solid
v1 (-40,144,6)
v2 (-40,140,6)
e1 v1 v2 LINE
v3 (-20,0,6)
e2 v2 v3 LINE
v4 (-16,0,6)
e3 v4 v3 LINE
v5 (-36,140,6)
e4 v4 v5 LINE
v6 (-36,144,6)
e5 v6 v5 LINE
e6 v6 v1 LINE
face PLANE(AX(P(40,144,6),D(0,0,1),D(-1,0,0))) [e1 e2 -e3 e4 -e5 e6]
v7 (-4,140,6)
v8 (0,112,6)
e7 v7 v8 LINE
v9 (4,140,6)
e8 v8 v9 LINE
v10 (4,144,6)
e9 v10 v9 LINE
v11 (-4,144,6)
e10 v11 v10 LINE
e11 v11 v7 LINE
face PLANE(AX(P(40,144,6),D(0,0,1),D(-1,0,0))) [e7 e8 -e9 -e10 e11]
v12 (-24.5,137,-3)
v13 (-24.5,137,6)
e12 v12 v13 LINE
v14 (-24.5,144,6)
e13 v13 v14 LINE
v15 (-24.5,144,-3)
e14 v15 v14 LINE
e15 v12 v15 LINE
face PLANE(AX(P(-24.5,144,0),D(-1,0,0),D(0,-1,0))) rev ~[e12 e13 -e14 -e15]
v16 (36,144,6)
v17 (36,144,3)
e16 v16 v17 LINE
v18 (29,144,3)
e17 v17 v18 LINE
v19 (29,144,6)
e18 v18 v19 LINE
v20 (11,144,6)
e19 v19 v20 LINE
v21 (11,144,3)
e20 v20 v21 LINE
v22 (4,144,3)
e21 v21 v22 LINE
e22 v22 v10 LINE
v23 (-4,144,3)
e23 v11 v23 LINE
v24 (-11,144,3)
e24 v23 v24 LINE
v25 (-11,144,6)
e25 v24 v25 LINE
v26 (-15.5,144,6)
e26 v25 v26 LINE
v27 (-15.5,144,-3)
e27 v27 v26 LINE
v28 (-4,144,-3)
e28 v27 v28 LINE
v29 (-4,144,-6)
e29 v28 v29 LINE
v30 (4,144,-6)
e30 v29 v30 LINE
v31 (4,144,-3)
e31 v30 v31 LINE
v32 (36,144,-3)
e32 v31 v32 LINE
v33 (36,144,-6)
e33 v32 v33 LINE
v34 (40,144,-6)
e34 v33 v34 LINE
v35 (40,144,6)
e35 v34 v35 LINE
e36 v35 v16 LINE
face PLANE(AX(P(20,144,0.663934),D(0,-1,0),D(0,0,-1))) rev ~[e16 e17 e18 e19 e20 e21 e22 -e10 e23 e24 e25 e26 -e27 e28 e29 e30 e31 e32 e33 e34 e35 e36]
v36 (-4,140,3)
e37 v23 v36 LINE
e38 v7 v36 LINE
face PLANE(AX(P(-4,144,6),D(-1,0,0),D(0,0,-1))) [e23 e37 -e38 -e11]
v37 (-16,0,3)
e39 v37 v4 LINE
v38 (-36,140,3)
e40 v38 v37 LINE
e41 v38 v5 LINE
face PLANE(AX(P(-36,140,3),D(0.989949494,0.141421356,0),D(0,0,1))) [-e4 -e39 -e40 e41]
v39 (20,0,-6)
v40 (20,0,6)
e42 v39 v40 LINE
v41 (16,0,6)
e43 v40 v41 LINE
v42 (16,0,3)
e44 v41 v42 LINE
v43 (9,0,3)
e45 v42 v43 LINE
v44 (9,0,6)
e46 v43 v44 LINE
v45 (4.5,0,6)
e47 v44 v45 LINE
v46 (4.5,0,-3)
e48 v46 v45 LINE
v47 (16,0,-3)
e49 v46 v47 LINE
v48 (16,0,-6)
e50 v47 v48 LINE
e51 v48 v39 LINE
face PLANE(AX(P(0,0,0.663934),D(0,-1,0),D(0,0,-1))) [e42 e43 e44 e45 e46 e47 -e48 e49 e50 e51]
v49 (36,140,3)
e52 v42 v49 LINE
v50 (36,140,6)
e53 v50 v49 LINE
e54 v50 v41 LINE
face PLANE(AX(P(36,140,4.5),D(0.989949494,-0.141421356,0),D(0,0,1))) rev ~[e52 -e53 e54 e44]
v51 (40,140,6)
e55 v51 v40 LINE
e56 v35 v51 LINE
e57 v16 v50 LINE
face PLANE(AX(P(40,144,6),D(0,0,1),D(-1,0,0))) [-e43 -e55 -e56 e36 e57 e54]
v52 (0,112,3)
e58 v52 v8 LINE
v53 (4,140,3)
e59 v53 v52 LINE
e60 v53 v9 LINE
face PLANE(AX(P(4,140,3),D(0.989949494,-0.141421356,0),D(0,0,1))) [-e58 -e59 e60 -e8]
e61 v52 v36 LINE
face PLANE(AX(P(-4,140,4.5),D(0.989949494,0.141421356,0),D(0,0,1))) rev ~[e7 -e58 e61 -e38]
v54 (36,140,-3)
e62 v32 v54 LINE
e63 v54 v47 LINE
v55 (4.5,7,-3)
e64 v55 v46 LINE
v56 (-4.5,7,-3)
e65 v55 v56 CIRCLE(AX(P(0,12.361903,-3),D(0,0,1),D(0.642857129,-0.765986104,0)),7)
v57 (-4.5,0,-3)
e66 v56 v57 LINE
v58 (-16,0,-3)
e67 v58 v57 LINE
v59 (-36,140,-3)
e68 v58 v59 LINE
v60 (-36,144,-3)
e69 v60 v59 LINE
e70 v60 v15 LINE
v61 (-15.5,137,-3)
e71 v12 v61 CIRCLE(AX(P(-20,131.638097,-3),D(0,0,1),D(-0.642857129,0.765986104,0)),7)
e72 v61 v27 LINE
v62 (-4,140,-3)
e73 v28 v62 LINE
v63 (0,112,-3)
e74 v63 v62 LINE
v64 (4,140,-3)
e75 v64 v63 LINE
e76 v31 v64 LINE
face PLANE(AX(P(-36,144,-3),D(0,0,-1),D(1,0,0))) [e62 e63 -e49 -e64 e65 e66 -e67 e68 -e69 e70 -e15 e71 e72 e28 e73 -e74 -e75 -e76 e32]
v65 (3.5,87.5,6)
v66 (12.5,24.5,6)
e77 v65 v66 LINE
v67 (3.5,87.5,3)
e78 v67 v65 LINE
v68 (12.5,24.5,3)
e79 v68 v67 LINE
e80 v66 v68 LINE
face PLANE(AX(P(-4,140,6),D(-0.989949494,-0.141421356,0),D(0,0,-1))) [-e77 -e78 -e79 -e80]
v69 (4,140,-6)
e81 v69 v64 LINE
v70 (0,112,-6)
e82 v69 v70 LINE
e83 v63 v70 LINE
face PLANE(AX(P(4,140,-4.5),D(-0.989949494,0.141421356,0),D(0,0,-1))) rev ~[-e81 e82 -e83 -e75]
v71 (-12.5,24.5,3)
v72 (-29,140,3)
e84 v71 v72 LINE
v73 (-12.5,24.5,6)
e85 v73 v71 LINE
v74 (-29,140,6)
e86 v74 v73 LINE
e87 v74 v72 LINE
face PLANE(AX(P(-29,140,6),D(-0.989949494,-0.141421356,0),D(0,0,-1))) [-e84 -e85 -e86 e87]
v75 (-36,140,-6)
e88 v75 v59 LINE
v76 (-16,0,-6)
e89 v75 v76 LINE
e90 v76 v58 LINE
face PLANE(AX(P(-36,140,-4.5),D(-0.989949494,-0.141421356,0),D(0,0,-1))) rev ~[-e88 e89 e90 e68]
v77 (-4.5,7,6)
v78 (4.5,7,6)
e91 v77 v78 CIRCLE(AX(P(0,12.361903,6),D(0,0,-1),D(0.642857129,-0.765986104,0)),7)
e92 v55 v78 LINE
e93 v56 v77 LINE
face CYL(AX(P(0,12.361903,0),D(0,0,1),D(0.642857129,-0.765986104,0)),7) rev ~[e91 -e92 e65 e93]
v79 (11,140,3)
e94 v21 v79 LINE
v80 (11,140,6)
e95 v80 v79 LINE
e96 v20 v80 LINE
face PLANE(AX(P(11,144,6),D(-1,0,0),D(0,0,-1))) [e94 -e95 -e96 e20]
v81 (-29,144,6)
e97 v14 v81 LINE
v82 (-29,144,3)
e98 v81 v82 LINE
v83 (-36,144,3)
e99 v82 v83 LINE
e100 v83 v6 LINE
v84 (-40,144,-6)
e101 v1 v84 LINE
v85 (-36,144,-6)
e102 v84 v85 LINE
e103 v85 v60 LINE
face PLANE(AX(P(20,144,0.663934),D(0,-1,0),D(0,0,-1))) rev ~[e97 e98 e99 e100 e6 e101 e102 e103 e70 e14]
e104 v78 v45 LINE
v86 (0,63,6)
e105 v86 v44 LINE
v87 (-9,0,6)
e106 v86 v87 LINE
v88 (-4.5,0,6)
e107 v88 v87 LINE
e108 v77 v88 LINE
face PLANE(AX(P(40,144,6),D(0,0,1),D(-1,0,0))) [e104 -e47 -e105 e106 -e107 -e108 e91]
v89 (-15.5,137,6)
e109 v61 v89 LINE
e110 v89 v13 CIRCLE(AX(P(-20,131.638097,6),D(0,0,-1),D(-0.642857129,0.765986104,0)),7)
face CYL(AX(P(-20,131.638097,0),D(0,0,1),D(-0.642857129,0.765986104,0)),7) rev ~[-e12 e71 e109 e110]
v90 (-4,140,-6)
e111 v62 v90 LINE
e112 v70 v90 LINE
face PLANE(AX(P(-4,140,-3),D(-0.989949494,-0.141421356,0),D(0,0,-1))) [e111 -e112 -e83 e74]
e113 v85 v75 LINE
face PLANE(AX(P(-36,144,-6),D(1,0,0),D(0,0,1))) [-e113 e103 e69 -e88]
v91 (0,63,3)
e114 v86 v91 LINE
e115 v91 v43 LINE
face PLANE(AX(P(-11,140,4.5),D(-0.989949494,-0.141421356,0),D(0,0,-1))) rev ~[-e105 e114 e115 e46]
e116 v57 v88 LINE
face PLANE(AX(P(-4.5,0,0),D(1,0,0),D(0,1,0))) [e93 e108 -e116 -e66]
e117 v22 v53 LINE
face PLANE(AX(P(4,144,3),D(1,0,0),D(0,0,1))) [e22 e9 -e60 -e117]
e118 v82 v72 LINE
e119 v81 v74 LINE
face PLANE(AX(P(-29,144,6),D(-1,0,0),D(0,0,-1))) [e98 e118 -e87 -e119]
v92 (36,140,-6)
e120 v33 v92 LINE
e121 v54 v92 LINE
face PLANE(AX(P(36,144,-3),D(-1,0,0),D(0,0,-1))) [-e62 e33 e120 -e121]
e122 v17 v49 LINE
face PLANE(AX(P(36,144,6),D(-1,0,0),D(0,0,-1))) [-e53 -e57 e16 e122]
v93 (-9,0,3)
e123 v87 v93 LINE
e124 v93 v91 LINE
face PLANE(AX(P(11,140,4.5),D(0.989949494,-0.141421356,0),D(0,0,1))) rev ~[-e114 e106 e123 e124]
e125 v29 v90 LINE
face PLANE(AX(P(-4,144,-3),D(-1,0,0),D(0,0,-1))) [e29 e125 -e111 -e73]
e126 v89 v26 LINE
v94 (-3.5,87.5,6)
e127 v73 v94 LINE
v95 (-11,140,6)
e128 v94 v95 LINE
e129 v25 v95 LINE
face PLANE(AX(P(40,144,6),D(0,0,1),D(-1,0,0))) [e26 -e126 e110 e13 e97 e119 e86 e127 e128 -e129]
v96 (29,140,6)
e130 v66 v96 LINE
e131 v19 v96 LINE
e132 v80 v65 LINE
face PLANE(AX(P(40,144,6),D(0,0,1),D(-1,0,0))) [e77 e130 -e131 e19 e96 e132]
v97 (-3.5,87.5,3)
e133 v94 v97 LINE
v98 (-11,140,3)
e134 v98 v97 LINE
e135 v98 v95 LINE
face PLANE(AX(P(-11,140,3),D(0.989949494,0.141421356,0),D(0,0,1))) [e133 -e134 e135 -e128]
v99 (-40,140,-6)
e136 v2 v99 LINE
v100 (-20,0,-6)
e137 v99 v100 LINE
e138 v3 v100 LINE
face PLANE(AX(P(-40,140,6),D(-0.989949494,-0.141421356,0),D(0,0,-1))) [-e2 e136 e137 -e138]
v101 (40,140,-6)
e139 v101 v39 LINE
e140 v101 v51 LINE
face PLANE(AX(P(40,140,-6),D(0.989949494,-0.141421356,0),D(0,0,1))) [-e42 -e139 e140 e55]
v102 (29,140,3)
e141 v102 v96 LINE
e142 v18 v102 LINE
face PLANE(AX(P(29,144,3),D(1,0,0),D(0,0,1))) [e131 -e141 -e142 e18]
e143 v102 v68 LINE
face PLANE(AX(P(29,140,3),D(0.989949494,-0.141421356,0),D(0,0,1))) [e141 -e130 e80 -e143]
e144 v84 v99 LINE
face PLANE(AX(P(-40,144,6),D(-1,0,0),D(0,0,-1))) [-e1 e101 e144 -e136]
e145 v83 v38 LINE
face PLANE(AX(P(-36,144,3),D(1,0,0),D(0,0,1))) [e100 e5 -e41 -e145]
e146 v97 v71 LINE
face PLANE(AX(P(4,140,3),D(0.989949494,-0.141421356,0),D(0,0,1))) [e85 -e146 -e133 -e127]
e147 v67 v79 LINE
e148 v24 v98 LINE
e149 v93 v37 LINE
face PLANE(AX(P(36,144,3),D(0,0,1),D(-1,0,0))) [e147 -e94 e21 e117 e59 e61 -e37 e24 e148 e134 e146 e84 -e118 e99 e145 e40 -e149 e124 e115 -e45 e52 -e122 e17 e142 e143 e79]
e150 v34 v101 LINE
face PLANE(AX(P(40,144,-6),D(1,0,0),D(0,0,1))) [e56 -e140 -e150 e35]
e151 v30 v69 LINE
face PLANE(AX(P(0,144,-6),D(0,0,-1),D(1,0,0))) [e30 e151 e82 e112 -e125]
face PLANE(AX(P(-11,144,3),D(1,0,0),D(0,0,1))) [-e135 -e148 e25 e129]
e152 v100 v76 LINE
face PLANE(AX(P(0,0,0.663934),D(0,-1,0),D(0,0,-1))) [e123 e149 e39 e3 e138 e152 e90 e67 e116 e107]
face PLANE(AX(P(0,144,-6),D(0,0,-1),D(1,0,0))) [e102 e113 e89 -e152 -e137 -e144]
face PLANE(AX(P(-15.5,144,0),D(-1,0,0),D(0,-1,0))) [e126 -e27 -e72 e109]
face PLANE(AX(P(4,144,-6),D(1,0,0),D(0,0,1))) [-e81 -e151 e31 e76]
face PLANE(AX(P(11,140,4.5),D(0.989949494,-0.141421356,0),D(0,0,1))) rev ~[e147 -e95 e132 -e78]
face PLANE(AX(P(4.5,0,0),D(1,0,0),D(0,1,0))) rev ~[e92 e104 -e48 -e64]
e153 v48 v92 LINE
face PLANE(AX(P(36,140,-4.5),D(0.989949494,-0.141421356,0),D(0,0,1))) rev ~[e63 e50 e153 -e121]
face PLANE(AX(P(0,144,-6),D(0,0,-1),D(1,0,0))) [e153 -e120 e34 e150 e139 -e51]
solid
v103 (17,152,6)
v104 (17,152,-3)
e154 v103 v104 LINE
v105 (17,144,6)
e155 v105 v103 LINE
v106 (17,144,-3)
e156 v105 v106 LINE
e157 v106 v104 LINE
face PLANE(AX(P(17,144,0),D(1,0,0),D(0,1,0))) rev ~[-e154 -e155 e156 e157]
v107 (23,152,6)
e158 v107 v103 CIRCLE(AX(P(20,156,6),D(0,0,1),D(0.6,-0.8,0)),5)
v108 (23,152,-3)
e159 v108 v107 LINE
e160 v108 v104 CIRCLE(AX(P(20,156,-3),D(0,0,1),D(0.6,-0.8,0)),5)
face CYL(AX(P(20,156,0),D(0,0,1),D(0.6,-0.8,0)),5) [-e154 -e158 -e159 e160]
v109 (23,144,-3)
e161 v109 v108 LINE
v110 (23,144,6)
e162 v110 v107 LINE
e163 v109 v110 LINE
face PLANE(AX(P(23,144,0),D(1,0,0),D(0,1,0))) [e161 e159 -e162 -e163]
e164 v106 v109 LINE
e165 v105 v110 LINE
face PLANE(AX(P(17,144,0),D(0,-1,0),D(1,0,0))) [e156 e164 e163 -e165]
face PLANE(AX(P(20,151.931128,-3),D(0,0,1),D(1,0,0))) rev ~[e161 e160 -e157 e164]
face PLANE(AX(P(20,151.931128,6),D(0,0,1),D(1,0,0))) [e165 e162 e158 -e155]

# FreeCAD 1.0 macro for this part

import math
import FreeCAD as App
import Part
import Sketcher
Q = App.Units.Quantity

doc = App.newDocument("Part")
body = doc.addObject("PartDesign::Body", "Body")

# Sketch on XZ plane
sketch1 = doc.addObject("Sketcher::SketchObject", "Sketch")
body.addObject(sketch1)
sketch1.AttachmentSupport = (doc.XZ_Plane, [""])
sketch1.MapMode = "FlatFace"
sketch1.addGeometry(Part.LineSegment(App.Vector(-20, 6, 0), App.Vector(-20, -6, 0)), False)
sketch1.addGeometry(Part.LineSegment(App.Vector(-20, -6, 0), App.Vector(-16, -6, 0)), False)
sketch1.addGeometry(Part.LineSegment(App.Vector(-16, -6, 0), App.Vector(-16, -3, 0)), False)
sketch1.addGeometry(Part.LineSegment(App.Vector(-16, -3, 0), App.Vector(16, -3, 0)), False)
sketch1.addGeometry(Part.LineSegment(App.Vector(16, -3, 0), App.Vector(16, -6, 0)), False)
sketch1.addGeometry(Part.LineSegment(App.Vector(16, -6, 0), App.Vector(20, -6, 0)), False)
sketch1.addGeometry(Part.LineSegment(App.Vector(20, -6, 0), App.Vector(20, 6, 0)), False)
sketch1.addGeometry(Part.LineSegment(App.Vector(20, 6, 0), App.Vector(16, 6, 0)), False)
sketch1.addGeometry(Part.LineSegment(App.Vector(16, 6, 0), App.Vector(16, 3, 0)), False)
sketch1.addGeometry(Part.LineSegment(App.Vector(16, 3, 0), App.Vector(9, 3, 0)), False)
sketch1.addGeometry(Part.LineSegment(App.Vector(9, 3, 0), App.Vector(9, 6, 0)), False)
sketch1.addGeometry(Part.LineSegment(App.Vector(9, 6, 0), App.Vector(-9, 6, 0)), False)
sketch1.addGeometry(Part.LineSegment(App.Vector(-9, 6, 0), App.Vector(-9, 3, 0)), False)
sketch1.addGeometry(Part.LineSegment(App.Vector(-9, 3, 0), App.Vector(-16, 3, 0)), False)
sketch1.addGeometry(Part.LineSegment(App.Vector(-16, 3, 0), App.Vector(-16, 6, 0)), False)
sketch1.addGeometry(Part.LineSegment(App.Vector(-16, 6, 0), App.Vector(-20, 6, 0)), False)
sketch1.addConstraint(Sketcher.Constraint("Coincident", 0, 2, 1, 1))
sketch1.addConstraint(Sketcher.Constraint("Coincident", 1, 2, 2, 1))
sketch1.addConstraint(Sketcher.Constraint("Coincident", 2, 2, 3, 1))
sketch1.addConstraint(Sketcher.Constraint("Coincident", 3, 2, 4, 1))
sketch1.addConstraint(Sketcher.Constraint("Coincident", 4, 2, 5, 1))
sketch1.addConstraint(Sketcher.Constraint("Coincident", 5, 2, 6, 1))
sketch1.addConstraint(Sketcher.Constraint("Coincident", 6, 2, 7, 1))
sketch1.addConstraint(Sketcher.Constraint("Coincident", 7, 2, 8, 1))
sketch1.addConstraint(Sketcher.Constraint("Coincident", 8, 2, 9, 1))
sketch1.addConstraint(Sketcher.Constraint("Coincident", 9, 2, 10, 1))
sketch1.addConstraint(Sketcher.Constraint("Coincident", 10, 2, 11, 1))
sketch1.addConstraint(Sketcher.Constraint("Coincident", 11, 2, 12, 1))
sketch1.addConstraint(Sketcher.Constraint("Coincident", 12, 2, 13, 1))
sketch1.addConstraint(Sketcher.Constraint("Coincident", 13, 2, 14, 1))
sketch1.addConstraint(Sketcher.Constraint("Coincident", 14, 2, 15, 1))
sketch1.addConstraint(Sketcher.Constraint("Coincident", 15, 2, 0, 1))
sketch1.addConstraint(Sketcher.Constraint("Vertical", 0))
sketch1.addConstraint(Sketcher.Constraint("Horizontal", 1))
sketch1.addConstraint(Sketcher.Constraint("Vertical", 2))
sketch1.addConstraint(Sketcher.Constraint("Horizontal", 3))
sketch1.addConstraint(Sketcher.Constraint("Vertical", 4))
sketch1.addConstraint(Sketcher.Constraint("Horizontal", 5))
sketch1.addConstraint(Sketcher.Constraint("Vertical", 6))
sketch1.addConstraint(Sketcher.Constraint("Horizontal", 7))
sketch1.addConstraint(Sketcher.Constraint("Vertical", 8))
sketch1.addConstraint(Sketcher.Constraint("Horizontal", 9))
sketch1.addConstraint(Sketcher.Constraint("Vertical", 10))
sketch1.addConstraint(Sketcher.Constraint("Horizontal", 11))
sketch1.addConstraint(Sketcher.Constraint("Vertical", 12))
sketch1.addConstraint(Sketcher.Constraint("Horizontal", 13))
sketch1.addConstraint(Sketcher.Constraint("Vertical", 14))
sketch1.addConstraint(Sketcher.Constraint("Horizontal", 15))
sketch1.addConstraint(Sketcher.Constraint("Symmetric", 0, 2, 6, 2, -1, 1))
sketch1.addConstraint(Sketcher.Constraint("Symmetric", 2, 2, 8, 2, -1, 1))
sketch1.addConstraint(Sketcher.Constraint("Symmetric", 3, 2, 13, 2, -1, 1))
sketch1.addConstraint(Sketcher.Constraint("Symmetric", 1, 2, 4, 2, -2))
sketch1.addConstraint(Sketcher.Constraint("Horizontal", 7, 2, 10, 2))
sketch1.addConstraint(Sketcher.Constraint("Horizontal", 11, 2, 14, 2))
sketch1.addConstraint(Sketcher.Constraint("Equal", 9, 13))
sketch1.addConstraint(Sketcher.Constraint("DistanceX", 1, 1, 1, 2, Q("4 mm")))
sketch1.addConstraint(Sketcher.Constraint("DistanceX", 3, 1, 3, 2, Q("32 mm")))
sketch1.addConstraint(Sketcher.Constraint("DistanceX", 9, 2, 9, 1, Q("7 mm")))
sketch1.addConstraint(Sketcher.Constraint("DistanceY", 0, 2, 0, 1, Q("12 mm")))
sketch1.addConstraint(Sketcher.Constraint("DistanceY", 2, 1, 2, 2, Q("3 mm")))

# Sketch on XY plane
sketch2 = doc.addObject("Sketcher::SketchObject", "Sketch001")
body.addObject(sketch2)
sketch2.AttachmentSupport = (doc.XY_Plane, [""])
sketch2.MapMode = "FlatFace"
sketch2.addGeometry(Part.LineSegment(App.Vector(-20, 144, 0), App.Vector(-20, 140, 0)), False)
sketch2.addGeometry(Part.LineSegment(App.Vector(-20, 140, 0), App.Vector(0, 0, 0)), False)
sketch2.addConstraint(Sketcher.Constraint("Coincident", 0, 2, 1, 1))
sketch2.addConstraint(Sketcher.Constraint("Vertical", 0))
sketch2.addConstraint(Sketcher.Constraint("Coincident", 1, 2, -1, 1))
sketch2.addConstraint(Sketcher.Constraint("DistanceY", 0, 2, 0, 1, Q("4 mm")))
sketch2.addConstraint(Sketcher.Constraint("DistanceX", 0, 1, -1, 1, Q("20 mm")))
sketch2.addConstraint(Sketcher.Constraint("DistanceY", -1, 1, 0, 1, Q("144 mm")))
doc.recompute()

additivepipe = doc.addObject("PartDesign::AdditivePipe", "AdditivePipe")
body.addObject(additivepipe)
additivepipe.Profile = sketch1
additivepipe.Spine = (sketch2, ["Edge1", "Edge2"])

# Sketch on XZ plane
sketch3 = doc.addObject("Sketcher::SketchObject", "Sketch002")
body.addObject(sketch3)
sketch3.AttachmentSupport = (doc.XZ_Plane, [""])
sketch3.MapMode = "FlatFace"
sketch3.addGeometry(Part.LineSegment(App.Vector(-20, 6, 0), App.Vector(-20, -6, 0)), False)
sketch3.addGeometry(Part.LineSegment(App.Vector(-20, -6, 0), App.Vector(-16, -6, 0)), False)
sketch3.addGeometry(Part.LineSegment(App.Vector(-16, -6, 0), App.Vector(-16, -3, 0)), False)
sketch3.addGeometry(Part.LineSegment(App.Vector(-16, -3, 0), App.Vector(16, -3, 0)), False)
sketch3.addGeometry(Part.LineSegment(App.Vector(16, -3, 0), App.Vector(16, -6, 0)), False)
sketch3.addGeometry(Part.LineSegment(App.Vector(16, -6, 0), App.Vector(20, -6, 0)), False)
sketch3.addGeometry(Part.LineSegment(App.Vector(20, -6, 0), App.Vector(20, 6, 0)), False)
sketch3.addGeometry(Part.LineSegment(App.Vector(20, 6, 0), App.Vector(16, 6, 0)), False)
sketch3.addGeometry(Part.LineSegment(App.Vector(16, 6, 0), App.Vector(16, 3, 0)), False)
sketch3.addGeometry(Part.LineSegment(App.Vector(16, 3, 0), App.Vector(9, 3, 0)), False)
sketch3.addGeometry(Part.LineSegment(App.Vector(9, 3, 0), App.Vector(9, 6, 0)), False)
sketch3.addGeometry(Part.LineSegment(App.Vector(9, 6, 0), App.Vector(-9, 6, 0)), False)
sketch3.addGeometry(Part.LineSegment(App.Vector(-9, 6, 0), App.Vector(-9, 3, 0)), False)
sketch3.addGeometry(Part.LineSegment(App.Vector(-9, 3, 0), App.Vector(-16, 3, 0)), False)
sketch3.addGeometry(Part.LineSegment(App.Vector(-16, 3, 0), App.Vector(-16, 6, 0)), False)
sketch3.addGeometry(Part.LineSegment(App.Vector(-16, 6, 0), App.Vector(-20, 6, 0)), False)
sketch3.addConstraint(Sketcher.Constraint("Coincident", 0, 2, 1, 1))
sketch3.addConstraint(Sketcher.Constraint("Coincident", 1, 2, 2, 1))
sketch3.addConstraint(Sketcher.Constraint("Coincident", 2, 2, 3, 1))
sketch3.addConstraint(Sketcher.Constraint("Coincident", 3, 2, 4, 1))
sketch3.addConstraint(Sketcher.Constraint("Coincident", 4, 2, 5, 1))
sketch3.addConstraint(Sketcher.Constraint("Coincident", 5, 2, 6, 1))
sketch3.addConstraint(Sketcher.Constraint("Coincident", 6, 2, 7, 1))
sketch3.addConstraint(Sketcher.Constraint("Coincident", 7, 2, 8, 1))
sketch3.addConstraint(Sketcher.Constraint("Coincident", 8, 2, 9, 1))
sketch3.addConstraint(Sketcher.Constraint("Coincident", 9, 2, 10, 1))
sketch3.addConstraint(Sketcher.Constraint("Coincident", 10, 2, 11, 1))
sketch3.addConstraint(Sketcher.Constraint("Coincident", 11, 2, 12, 1))
sketch3.addConstraint(Sketcher.Constraint("Coincident", 12, 2, 13, 1))
sketch3.addConstraint(Sketcher.Constraint("Coincident", 13, 2, 14, 1))
sketch3.addConstraint(Sketcher.Constraint("Coincident", 14, 2, 15, 1))
sketch3.addConstraint(Sketcher.Constraint("Coincident", 15, 2, 0, 1))
sketch3.addConstraint(Sketcher.Constraint("Vertical", 0))
sketch3.addConstraint(Sketcher.Constraint("Horizontal", 1))
sketch3.addConstraint(Sketcher.Constraint("Vertical", 2))
sketch3.addConstraint(Sketcher.Constraint("Horizontal", 3))
sketch3.addConstraint(Sketcher.Constraint("Vertical", 4))
sketch3.addConstraint(Sketcher.Constraint("Horizontal", 5))
sketch3.addConstraint(Sketcher.Constraint("Vertical", 6))
sketch3.addConstraint(Sketcher.Constraint("Horizontal", 7))
sketch3.addConstraint(Sketcher.Constraint("Vertical", 8))
sketch3.addConstraint(Sketcher.Constraint("Horizontal", 9))
sketch3.addConstraint(Sketcher.Constraint("Vertical", 10))
sketch3.addConstraint(Sketcher.Constraint("Horizontal", 11))
sketch3.addConstraint(Sketcher.Constraint("Vertical", 12))
sketch3.addConstraint(Sketcher.Constraint("Horizontal", 13))
sketch3.addConstraint(Sketcher.Constraint("Vertical", 14))
sketch3.addConstraint(Sketcher.Constraint("Horizontal", 15))
sketch3.addConstraint(Sketcher.Constraint("Symmetric", 0, 2, 6, 2, -1, 1))
sketch3.addConstraint(Sketcher.Constraint("Symmetric", 2, 2, 8, 2, -1, 1))
sketch3.addConstraint(Sketcher.Constraint("Symmetric", 3, 2, 13, 2, -1, 1))
sketch3.addConstraint(Sketcher.Constraint("Symmetric", 1, 2, 4, 2, -2))
sketch3.addConstraint(Sketcher.Constraint("Horizontal", 7, 2, 10, 2))
sketch3.addConstraint(Sketcher.Constraint("Horizontal", 11, 2, 14, 2))
sketch3.addConstraint(Sketcher.Constraint("Equal", 9, 13))
sketch3.addConstraint(Sketcher.Constraint("DistanceX", 1, 1, 1, 2, Q("4 mm")))
sketch3.addConstraint(Sketcher.Constraint("DistanceX", 3, 1, 3, 2, Q("32 mm")))
sketch3.addConstraint(Sketcher.Constraint("DistanceX", 9, 2, 9, 1, Q("7 mm")))
sketch3.addConstraint(Sketcher.Constraint("DistanceY", 0, 2, 0, 1, Q("12 mm")))
sketch3.addConstraint(Sketcher.Constraint("DistanceY", 2, 1, 2, 2, Q("3 mm")))

# Sketch on XY plane
sketch4 = doc.addObject("Sketcher::SketchObject", "Sketch003")
body.addObject(sketch4)
sketch4.AttachmentSupport = (doc.XY_Plane, [""])
sketch4.MapMode = "FlatFace"
sketch4.addGeometry(Part.LineSegment(App.Vector(20, 144, 0), App.Vector(20, 140, 0)), False)
sketch4.addGeometry(Part.LineSegment(App.Vector(20, 140, 0), App.Vector(0, 0, 0)), False)
sketch4.addConstraint(Sketcher.Constraint("Coincident", 0, 2, 1, 1))
sketch4.addConstraint(Sketcher.Constraint("Vertical", 0))
sketch4.addConstraint(Sketcher.Constraint("Coincident", 1, 2, -1, 1))
sketch4.addConstraint(Sketcher.Constraint("DistanceY", 0, 2, 0, 1, Q("4 mm")))
sketch4.addConstraint(Sketcher.Constraint("DistanceX", -1, 1, 0, 1, Q("20 mm")))
sketch4.addConstraint(Sketcher.Constraint("DistanceY", -1, 1, 0, 1, Q("144 mm")))
doc.recompute()

additivepipe2 = doc.addObject("PartDesign::AdditivePipe", "AdditivePipe001")
body.addObject(additivepipe2)
additivepipe2.Profile = sketch3
additivepipe2.Spine = (sketch4, ["Edge1", "Edge2"])

# Sketch on XZ plane
sketch5 = doc.addObject("Sketcher::SketchObject", "Sketch004")
body.addObject(sketch5)
sketch5.AttachmentSupport = (doc.XZ_Plane, [""])
sketch5.MapMode = "FlatFace"
sketch5.addGeometry(Part.LineSegment(App.Vector(-16, -3, 0), App.Vector(-16, -6, 0)), False)
sketch5.addGeometry(Part.LineSegment(App.Vector(-16, -6, 0), App.Vector(16, -6, 0)), False)
sketch5.addGeometry(Part.LineSegment(App.Vector(16, -6, 0), App.Vector(16, -3, 0)), False)
sketch5.addGeometry(Part.LineSegment(App.Vector(16, -3, 0), App.Vector(-16, -3, 0)), False)
sketch5.addConstraint(Sketcher.Constraint("Coincident", 0, 2, 1, 1))
sketch5.addConstraint(Sketcher.Constraint("Coincident", 1, 2, 2, 1))
sketch5.addConstraint(Sketcher.Constraint("Coincident", 2, 2, 3, 1))
sketch5.addConstraint(Sketcher.Constraint("Coincident", 3, 2, 0, 1))
sketch5.addConstraint(Sketcher.Constraint("Vertical", 0))
sketch5.addConstraint(Sketcher.Constraint("Horizontal", 1))
sketch5.addConstraint(Sketcher.Constraint("Vertical", 2))
sketch5.addConstraint(Sketcher.Constraint("Horizontal", 3))
sketch5.addConstraint(Sketcher.Constraint("DistanceX", 1, 1, 1, 2, Q("32 mm")))
sketch5.addConstraint(Sketcher.Constraint("DistanceY", 0, 2, 0, 1, Q("3 mm")))
sketch5.addConstraint(Sketcher.Constraint("DistanceX", 0, 2, -1, 1, Q("16 mm")))
sketch5.addConstraint(Sketcher.Constraint("DistanceY", 0, 2, -1, 1, Q("6 mm")))

# Sketch on XY plane
sketch6 = doc.addObject("Sketcher::SketchObject", "Sketch005")
body.addObject(sketch6)
sketch6.AttachmentSupport = (doc.XY_Plane, [""])
sketch6.MapMode = "FlatFace"
sketch6.addGeometry(Part.LineSegment(App.Vector(-20, 144, 0), App.Vector(-20, 140, 0)), False)
sketch6.addGeometry(Part.LineSegment(App.Vector(-20, 140, 0), App.Vector(0, 0, 0)), False)
sketch6.addConstraint(Sketcher.Constraint("Coincident", 0, 2, 1, 1))
sketch6.addConstraint(Sketcher.Constraint("Vertical", 0))
sketch6.addConstraint(Sketcher.Constraint("Coincident", 1, 2, -1, 1))
sketch6.addConstraint(Sketcher.Constraint("DistanceY", 0, 2, 0, 1, Q("4 mm")))
sketch6.addConstraint(Sketcher.Constraint("DistanceX", 0, 1, -1, 1, Q("20 mm")))
sketch6.addConstraint(Sketcher.Constraint("DistanceY", -1, 1, 0, 1, Q("144 mm")))
doc.recompute()

subtractivepipe = doc.addObject("PartDesign::SubtractivePipe", "SubtractivePipe")
body.addObject(subtractivepipe)
subtractivepipe.Profile = sketch5
subtractivepipe.Spine = (sketch6, ["Edge1", "Edge2"])

# Sketch on XZ plane
sketch7 = doc.addObject("Sketcher::SketchObject", "Sketch006")
body.addObject(sketch7)
sketch7.AttachmentSupport = (doc.XZ_Plane, [""])
sketch7.MapMode = "FlatFace"
sketch7.addGeometry(Part.LineSegment(App.Vector(-16, -3, 0), App.Vector(-16, -6, 0)), False)
sketch7.addGeometry(Part.LineSegment(App.Vector(-16, -6, 0), App.Vector(16, -6, 0)), False)
sketch7.addGeometry(Part.LineSegment(App.Vector(16, -6, 0), App.Vector(16, -3, 0)), False)
sketch7.addGeometry(Part.LineSegment(App.Vector(16, -3, 0), App.Vector(-16, -3, 0)), False)
sketch7.addConstraint(Sketcher.Constraint("Coincident", 0, 2, 1, 1))
sketch7.addConstraint(Sketcher.Constraint("Coincident", 1, 2, 2, 1))
sketch7.addConstraint(Sketcher.Constraint("Coincident", 2, 2, 3, 1))
sketch7.addConstraint(Sketcher.Constraint("Coincident", 3, 2, 0, 1))
sketch7.addConstraint(Sketcher.Constraint("Vertical", 0))
sketch7.addConstraint(Sketcher.Constraint("Horizontal", 1))
sketch7.addConstraint(Sketcher.Constraint("Vertical", 2))
sketch7.addConstraint(Sketcher.Constraint("Horizontal", 3))
sketch7.addConstraint(Sketcher.Constraint("DistanceX", 1, 1, 1, 2, Q("32 mm")))
sketch7.addConstraint(Sketcher.Constraint("DistanceY", 0, 2, 0, 1, Q("3 mm")))
sketch7.addConstraint(Sketcher.Constraint("DistanceX", 0, 2, -1, 1, Q("16 mm")))
sketch7.addConstraint(Sketcher.Constraint("DistanceY", 0, 2, -1, 1, Q("6 mm")))

# Sketch on XY plane
sketch8 = doc.addObject("Sketcher::SketchObject", "Sketch007")
body.addObject(sketch8)
sketch8.AttachmentSupport = (doc.XY_Plane, [""])
sketch8.MapMode = "FlatFace"
sketch8.addGeometry(Part.LineSegment(App.Vector(20, 144, 0), App.Vector(20, 140, 0)), False)
sketch8.addGeometry(Part.LineSegment(App.Vector(20, 140, 0), App.Vector(0, 0, 0)), False)
sketch8.addConstraint(Sketcher.Constraint("Coincident", 0, 2, 1, 1))
sketch8.addConstraint(Sketcher.Constraint("Vertical", 0))
sketch8.addConstraint(Sketcher.Constraint("Coincident", 1, 2, -1, 1))
sketch8.addConstraint(Sketcher.Constraint("DistanceY", 0, 2, 0, 1, Q("4 mm")))
sketch8.addConstraint(Sketcher.Constraint("DistanceX", -1, 1, 0, 1, Q("20 mm")))
sketch8.addConstraint(Sketcher.Constraint("DistanceY", -1, 1, 0, 1, Q("144 mm")))
doc.recompute()

subtractivepipe2 = doc.addObject("PartDesign::SubtractivePipe", "SubtractivePipe001")
body.addObject(subtractivepipe2)
subtractivepipe2.Profile = sketch7
subtractivepipe2.Spine = (sketch8, ["Edge1", "Edge2"])

# Sketch on XZ plane
sketch9 = doc.addObject("Sketcher::SketchObject", "Sketch008")
body.addObject(sketch9)
sketch9.AttachmentSupport = (doc.XZ_Plane, [""])
sketch9.MapMode = "FlatFace"
sketch9.addGeometry(Part.LineSegment(App.Vector(-16, 6, 0), App.Vector(-16, 3, 0)), False)
sketch9.addGeometry(Part.LineSegment(App.Vector(-16, 3, 0), App.Vector(-9, 3, 0)), False)
sketch9.addGeometry(Part.LineSegment(App.Vector(-9, 3, 0), App.Vector(-9, 6, 0)), False)
sketch9.addGeometry(Part.LineSegment(App.Vector(-9, 6, 0), App.Vector(-16, 6, 0)), False)
sketch9.addConstraint(Sketcher.Constraint("Coincident", 0, 2, 1, 1))
sketch9.addConstraint(Sketcher.Constraint("Coincident", 1, 2, 2, 1))
sketch9.addConstraint(Sketcher.Constraint("Coincident", 2, 2, 3, 1))
sketch9.addConstraint(Sketcher.Constraint("Coincident", 3, 2, 0, 1))
sketch9.addConstraint(Sketcher.Constraint("Vertical", 0))
sketch9.addConstraint(Sketcher.Constraint("Horizontal", 1))
sketch9.addConstraint(Sketcher.Constraint("Vertical", 2))
sketch9.addConstraint(Sketcher.Constraint("Horizontal", 3))
sketch9.addConstraint(Sketcher.Constraint("DistanceX", 1, 1, 1, 2, Q("7 mm")))
sketch9.addConstraint(Sketcher.Constraint("DistanceY", 0, 2, 0, 1, Q("3 mm")))
sketch9.addConstraint(Sketcher.Constraint("DistanceX", 0, 2, -1, 1, Q("16 mm")))
sketch9.addConstraint(Sketcher.Constraint("DistanceY", -1, 1, 0, 2, Q("3 mm")))

# Sketch on XY plane
sketch10 = doc.addObject("Sketcher::SketchObject", "Sketch009")
body.addObject(sketch10)
sketch10.AttachmentSupport = (doc.XY_Plane, [""])
sketch10.MapMode = "FlatFace"
sketch10.addGeometry(Part.LineSegment(App.Vector(-20, 144, 0), App.Vector(-20, 140, 0)), False)
sketch10.addGeometry(Part.LineSegment(App.Vector(-20, 140, 0), App.Vector(0, 0, 0)), False)
sketch10.addConstraint(Sketcher.Constraint("Coincident", 0, 2, 1, 1))
sketch10.addConstraint(Sketcher.Constraint("Vertical", 0))
sketch10.addConstraint(Sketcher.Constraint("Coincident", 1, 2, -1, 1))
sketch10.addConstraint(Sketcher.Constraint("DistanceY", 0, 2, 0, 1, Q("4 mm")))
sketch10.addConstraint(Sketcher.Constraint("DistanceX", 0, 1, -1, 1, Q("20 mm")))
sketch10.addConstraint(Sketcher.Constraint("DistanceY", -1, 1, 0, 1, Q("144 mm")))
doc.recompute()

subtractivepipe3 = doc.addObject("PartDesign::SubtractivePipe", "SubtractivePipe002")
body.addObject(subtractivepipe3)
subtractivepipe3.Profile = sketch9
subtractivepipe3.Spine = (sketch10, ["Edge1", "Edge2"])

# Sketch on XZ plane
sketch11 = doc.addObject("Sketcher::SketchObject", "Sketch010")
body.addObject(sketch11)
sketch11.AttachmentSupport = (doc.XZ_Plane, [""])
sketch11.MapMode = "FlatFace"
sketch11.addGeometry(Part.LineSegment(App.Vector(-16, 6, 0), App.Vector(-16, 3, 0)), False)
sketch11.addGeometry(Part.LineSegment(App.Vector(-16, 3, 0), App.Vector(-9, 3, 0)), False)
sketch11.addGeometry(Part.LineSegment(App.Vector(-9, 3, 0), App.Vector(-9, 6, 0)), False)
sketch11.addGeometry(Part.LineSegment(App.Vector(-9, 6, 0), App.Vector(-16, 6, 0)), False)
sketch11.addConstraint(Sketcher.Constraint("Coincident", 0, 2, 1, 1))
sketch11.addConstraint(Sketcher.Constraint("Coincident", 1, 2, 2, 1))
sketch11.addConstraint(Sketcher.Constraint("Coincident", 2, 2, 3, 1))
sketch11.addConstraint(Sketcher.Constraint("Coincident", 3, 2, 0, 1))
sketch11.addConstraint(Sketcher.Constraint("Vertical", 0))
sketch11.addConstraint(Sketcher.Constraint("Horizontal", 1))
sketch11.addConstraint(Sketcher.Constraint("Vertical", 2))
sketch11.addConstraint(Sketcher.Constraint("Horizontal", 3))
sketch11.addConstraint(Sketcher.Constraint("DistanceX", 1, 1, 1, 2, Q("7 mm")))
sketch11.addConstraint(Sketcher.Constraint("DistanceY", 0, 2, 0, 1, Q("3 mm")))
sketch11.addConstraint(Sketcher.Constraint("DistanceX", 0, 2, -1, 1, Q("16 mm")))
sketch11.addConstraint(Sketcher.Constraint("DistanceY", -1, 1, 0, 2, Q("3 mm")))

# Sketch on XY plane
sketch12 = doc.addObject("Sketcher::SketchObject", "Sketch011")
body.addObject(sketch12)
sketch12.AttachmentSupport = (doc.XY_Plane, [""])
sketch12.MapMode = "FlatFace"
sketch12.addGeometry(Part.LineSegment(App.Vector(20, 144, 0), App.Vector(20, 140, 0)), False)
sketch12.addGeometry(Part.LineSegment(App.Vector(20, 140, 0), App.Vector(0, 0, 0)), False)
sketch12.addConstraint(Sketcher.Constraint("Coincident", 0, 2, 1, 1))
sketch12.addConstraint(Sketcher.Constraint("Vertical", 0))
sketch12.addConstraint(Sketcher.Constraint("Coincident", 1, 2, -1, 1))
sketch12.addConstraint(Sketcher.Constraint("DistanceY", 0, 2, 0, 1, Q("4 mm")))
sketch12.addConstraint(Sketcher.Constraint("DistanceX", -1, 1, 0, 1, Q("20 mm")))
sketch12.addConstraint(Sketcher.Constraint("DistanceY", -1, 1, 0, 1, Q("144 mm")))
doc.recompute()

subtractivepipe4 = doc.addObject("PartDesign::SubtractivePipe", "SubtractivePipe003")
body.addObject(subtractivepipe4)
subtractivepipe4.Profile = sketch11
subtractivepipe4.Spine = (sketch12, ["Edge1", "Edge2"])

# Sketch on XZ plane
sketch13 = doc.addObject("Sketcher::SketchObject", "Sketch012")
body.addObject(sketch13)
sketch13.AttachmentSupport = (doc.XZ_Plane, [""])
sketch13.MapMode = "FlatFace"
sketch13.addGeometry(Part.LineSegment(App.Vector(9, 6, 0), App.Vector(9, 3, 0)), False)
sketch13.addGeometry(Part.LineSegment(App.Vector(9, 3, 0), App.Vector(16, 3, 0)), False)
sketch13.addGeometry(Part.LineSegment(App.Vector(16, 3, 0), App.Vector(16, 6, 0)), False)
sketch13.addGeometry(Part.LineSegment(App.Vector(16, 6, 0), App.Vector(9, 6, 0)), False)
sketch13.addConstraint(Sketcher.Constraint("Coincident", 0, 2, 1, 1))
sketch13.addConstraint(Sketcher.Constraint("Coincident", 1, 2, 2, 1))
sketch13.addConstraint(Sketcher.Constraint("Coincident", 2, 2, 3, 1))
sketch13.addConstraint(Sketcher.Constraint("Coincident", 3, 2, 0, 1))
sketch13.addConstraint(Sketcher.Constraint("Vertical", 0))
sketch13.addConstraint(Sketcher.Constraint("Horizontal", 1))
sketch13.addConstraint(Sketcher.Constraint("Vertical", 2))
sketch13.addConstraint(Sketcher.Constraint("Horizontal", 3))
sketch13.addConstraint(Sketcher.Constraint("DistanceX", 1, 1, 1, 2, Q("7 mm")))
sketch13.addConstraint(Sketcher.Constraint("DistanceY", 0, 2, 0, 1, Q("3 mm")))
sketch13.addConstraint(Sketcher.Constraint("DistanceX", -1, 1, 0, 2, Q("9 mm")))
sketch13.addConstraint(Sketcher.Constraint("DistanceY", -1, 1, 0, 2, Q("3 mm")))

# Sketch on XY plane
sketch14 = doc.addObject("Sketcher::SketchObject", "Sketch013")
body.addObject(sketch14)
sketch14.AttachmentSupport = (doc.XY_Plane, [""])
sketch14.MapMode = "FlatFace"
sketch14.addGeometry(Part.LineSegment(App.Vector(-20, 144, 0), App.Vector(-20, 140, 0)), False)
sketch14.addGeometry(Part.LineSegment(App.Vector(-20, 140, 0), App.Vector(0, 0, 0)), False)
sketch14.addConstraint(Sketcher.Constraint("Coincident", 0, 2, 1, 1))
sketch14.addConstraint(Sketcher.Constraint("Vertical", 0))
sketch14.addConstraint(Sketcher.Constraint("Coincident", 1, 2, -1, 1))
sketch14.addConstraint(Sketcher.Constraint("DistanceY", 0, 2, 0, 1, Q("4 mm")))
sketch14.addConstraint(Sketcher.Constraint("DistanceX", 0, 1, -1, 1, Q("20 mm")))
sketch14.addConstraint(Sketcher.Constraint("DistanceY", -1, 1, 0, 1, Q("144 mm")))
doc.recompute()

subtractivepipe5 = doc.addObject("PartDesign::SubtractivePipe", "SubtractivePipe004")
body.addObject(subtractivepipe5)
subtractivepipe5.Profile = sketch13
subtractivepipe5.Spine = (sketch14, ["Edge1", "Edge2"])

# Sketch on XZ plane
sketch15 = doc.addObject("Sketcher::SketchObject", "Sketch014")
body.addObject(sketch15)
sketch15.AttachmentSupport = (doc.XZ_Plane, [""])
sketch15.MapMode = "FlatFace"
sketch15.addGeometry(Part.LineSegment(App.Vector(9, 6, 0), App.Vector(9, 3, 0)), False)
sketch15.addGeometry(Part.LineSegment(App.Vector(9, 3, 0), App.Vector(16, 3, 0)), False)
sketch15.addGeometry(Part.LineSegment(App.Vector(16, 3, 0), App.Vector(16, 6, 0)), False)
sketch15.addGeometry(Part.LineSegment(App.Vector(16, 6, 0), App.Vector(9, 6, 0)), False)
sketch15.addConstraint(Sketcher.Constraint("Coincident", 0, 2, 1, 1))
sketch15.addConstraint(Sketcher.Constraint("Coincident", 1, 2, 2, 1))
sketch15.addConstraint(Sketcher.Constraint("Coincident", 2, 2, 3, 1))
sketch15.addConstraint(Sketcher.Constraint("Coincident", 3, 2, 0, 1))
sketch15.addConstraint(Sketcher.Constraint("Vertical", 0))
sketch15.addConstraint(Sketcher.Constraint("Horizontal", 1))
sketch15.addConstraint(Sketcher.Constraint("Vertical", 2))
sketch15.addConstraint(Sketcher.Constraint("Horizontal", 3))
sketch15.addConstraint(Sketcher.Constraint("DistanceX", 1, 1, 1, 2, Q("7 mm")))
sketch15.addConstraint(Sketcher.Constraint("DistanceY", 0, 2, 0, 1, Q("3 mm")))
sketch15.addConstraint(Sketcher.Constraint("DistanceX", -1, 1, 0, 2, Q("9 mm")))
sketch15.addConstraint(Sketcher.Constraint("DistanceY", -1, 1, 0, 2, Q("3 mm")))

# Sketch on XY plane
sketch16 = doc.addObject("Sketcher::SketchObject", "Sketch015")
body.addObject(sketch16)
sketch16.AttachmentSupport = (doc.XY_Plane, [""])
sketch16.MapMode = "FlatFace"
sketch16.addGeometry(Part.LineSegment(App.Vector(20, 144, 0), App.Vector(20, 140, 0)), False)
sketch16.addGeometry(Part.LineSegment(App.Vector(20, 140, 0), App.Vector(0, 0, 0)), False)
sketch16.addConstraint(Sketcher.Constraint("Coincident", 0, 2, 1, 1))
sketch16.addConstraint(Sketcher.Constraint("Vertical", 0))
sketch16.addConstraint(Sketcher.Constraint("Coincident", 1, 2, -1, 1))
sketch16.addConstraint(Sketcher.Constraint("DistanceY", 0, 2, 0, 1, Q("4 mm")))
sketch16.addConstraint(Sketcher.Constraint("DistanceX", -1, 1, 0, 1, Q("20 mm")))
sketch16.addConstraint(Sketcher.Constraint("DistanceY", -1, 1, 0, 1, Q("144 mm")))
doc.recompute()

subtractivepipe6 = doc.addObject("PartDesign::SubtractivePipe", "SubtractivePipe005")
body.addObject(subtractivepipe6)
subtractivepipe6.Profile = sketch15
subtractivepipe6.Spine = (sketch16, ["Edge1", "Edge2"])

# Sketch on XY plane
sketch17 = doc.addObject("Sketcher::SketchObject", "Sketch016")
body.addObject(sketch17)
sketch17.AttachmentSupport = (doc.XY_Plane, [""])
sketch17.MapMode = "FlatFace"
sketch17.addGeometry(Part.LineSegment(App.Vector(-4, 0, 0), App.Vector(4, 0, 0)), False)
sketch17.addGeometry(Part.LineSegment(App.Vector(4, 0, 0), App.Vector(4, 7, 0)), False)
sketch17.addGeometry(Part.ArcOfCircle(Part.Circle(App.Vector(0, 12, 0), App.Vector(0, 0, 1), 7), math.radians(-50), math.radians(230)), False)
sketch17.addGeometry(Part.LineSegment(App.Vector(-4, 7, 0), App.Vector(-4, 0, 0)), False)
sketch17.addConstraint(Sketcher.Constraint("Coincident", 0, 2, 1, 1))
sketch17.addConstraint(Sketcher.Constraint("Coincident", 1, 2, 2, 1))
sketch17.addConstraint(Sketcher.Constraint("Coincident", 2, 2, 3, 1))
sketch17.addConstraint(Sketcher.Constraint("Coincident", 3, 2, 0, 1))
sketch17.addConstraint(Sketcher.Constraint("Horizontal", 0))
sketch17.addConstraint(Sketcher.Constraint("Vertical", 1))
sketch17.addConstraint(Sketcher.Constraint("Vertical", 3))
sketch17.addConstraint(Sketcher.Constraint("Symmetric", 0, 2, 3, 2, -1, 1))
sketch17.addConstraint(Sketcher.Constraint("PointOnObject", 2, 3, -2))
sketch17.addConstraint(Sketcher.Constraint("Radius", 2, Q("7 mm")))
sketch17.addConstraint(Sketcher.Constraint("DistanceX", 0, 1, 0, 2, Q("9 mm")))
sketch17.addConstraint(Sketcher.Constraint("DistanceY", 1, 1, 1, 2, Q("7 mm")))
pocket1 = doc.addObject("PartDesign::Pocket", "Pocket")
body.addObject(pocket1)
pocket1.Profile = sketch17
pocket1.Type = "ThroughAll"
pocket1.Midplane = True

# Sketch on XY plane
sketch18 = doc.addObject("Sketcher::SketchObject", "Sketch017")
body.addObject(sketch18)
sketch18.AttachmentSupport = (doc.XY_Plane, [""])
sketch18.MapMode = "FlatFace"
sketch18.addGeometry(Part.LineSegment(App.Vector(-16, 144, 0), App.Vector(-24, 144, 0)), False)
sketch18.addGeometry(Part.LineSegment(App.Vector(-24, 144, 0), App.Vector(-24, 137, 0)), False)
sketch18.addGeometry(Part.ArcOfCircle(Part.Circle(App.Vector(-20, 132, 0), App.Vector(0, 0, 1), 7), math.radians(130), math.radians(410)), False)
sketch18.addGeometry(Part.LineSegment(App.Vector(-16, 137, 0), App.Vector(-16, 144, 0)), False)
sketch18.addConstraint(Sketcher.Constraint("Coincident", 0, 2, 1, 1))
sketch18.addConstraint(Sketcher.Constraint("Coincident", 1, 2, 2, 1))
sketch18.addConstraint(Sketcher.Constraint("Coincident", 2, 2, 3, 1))
sketch18.addConstraint(Sketcher.Constraint("Coincident", 3, 2, 0, 1))
sketch18.addConstraint(Sketcher.Constraint("Horizontal", 0))
sketch18.addConstraint(Sketcher.Constraint("Vertical", 1))
sketch18.addConstraint(Sketcher.Constraint("Vertical", 3))
sketch18.addConstraint(Sketcher.Constraint("Horizontal", 1, 2, 2, 2))
sketch18.addConstraint(Sketcher.Constraint("Radius", 2, Q("7 mm")))
sketch18.addConstraint(Sketcher.Constraint("DistanceX", 0, 2, 0, 1, Q("9 mm")))
sketch18.addConstraint(Sketcher.Constraint("DistanceY", 1, 2, 1, 1, Q("7 mm")))
sketch18.addConstraint(Sketcher.Constraint("DistanceX", 2, 3, -1, 1, Q("20 mm")))
sketch18.addConstraint(Sketcher.Constraint("DistanceY", -1, 1, 0, 2, Q("144 mm")))
pocket2 = doc.addObject("PartDesign::Pocket", "Pocket001")
body.addObject(pocket2)
pocket2.Profile = sketch18
pocket2.Type = "ThroughAll"
pocket2.Midplane = True
body2 = doc.addObject("PartDesign::Body", "Body001")

# Sketch on XY plane
sketch19 = doc.addObject("Sketcher::SketchObject", "Sketch018")
body2.addObject(sketch19)
sketch19.AttachmentSupport = (doc.getObject("XY_Plane001"), [""])
sketch19.MapMode = "FlatFace"
sketch19.addGeometry(Part.LineSegment(App.Vector(17, 144, 0), App.Vector(23, 144, 0)), False)
sketch19.addGeometry(Part.LineSegment(App.Vector(23, 144, 0), App.Vector(23, 152, 0)), False)
sketch19.addGeometry(Part.ArcOfCircle(Part.Circle(App.Vector(20, 156, 0), App.Vector(0, 0, 1), 5), math.radians(-53), math.radians(233)), False)
sketch19.addGeometry(Part.LineSegment(App.Vector(17, 152, 0), App.Vector(17, 144, 0)), False)
sketch19.addConstraint(Sketcher.Constraint("Coincident", 0, 2, 1, 1))
sketch19.addConstraint(Sketcher.Constraint("Coincident", 1, 2, 2, 1))
sketch19.addConstraint(Sketcher.Constraint("Coincident", 2, 2, 3, 1))
sketch19.addConstraint(Sketcher.Constraint("Coincident", 3, 2, 0, 1))
sketch19.addConstraint(Sketcher.Constraint("Horizontal", 0))
sketch19.addConstraint(Sketcher.Constraint("Vertical", 1))
sketch19.addConstraint(Sketcher.Constraint("Vertical", 3))
sketch19.addConstraint(Sketcher.Constraint("Horizontal", 1, 2, 2, 2))
sketch19.addConstraint(Sketcher.Constraint("Radius", 2, Q("5 mm")))
sketch19.addConstraint(Sketcher.Constraint("DistanceX", 0, 1, 0, 2, Q("6 mm")))
sketch19.addConstraint(Sketcher.Constraint("DistanceY", 1, 1, 1, 2, Q("8 mm")))
sketch19.addConstraint(Sketcher.Constraint("DistanceX", -1, 1, 2, 3, Q("20 mm")))
sketch19.addConstraint(Sketcher.Constraint("DistanceY", -1, 1, 2, 3, Q("156 mm")))
pad1 = doc.addObject("PartDesign::Pad", "Pad")
body2.addObject(pad1)
pad1.Profile = sketch19
pad1.Type = "TwoLengths"
pad1.Length = 6
pad1.Length2 = 3

doc.recompute()
